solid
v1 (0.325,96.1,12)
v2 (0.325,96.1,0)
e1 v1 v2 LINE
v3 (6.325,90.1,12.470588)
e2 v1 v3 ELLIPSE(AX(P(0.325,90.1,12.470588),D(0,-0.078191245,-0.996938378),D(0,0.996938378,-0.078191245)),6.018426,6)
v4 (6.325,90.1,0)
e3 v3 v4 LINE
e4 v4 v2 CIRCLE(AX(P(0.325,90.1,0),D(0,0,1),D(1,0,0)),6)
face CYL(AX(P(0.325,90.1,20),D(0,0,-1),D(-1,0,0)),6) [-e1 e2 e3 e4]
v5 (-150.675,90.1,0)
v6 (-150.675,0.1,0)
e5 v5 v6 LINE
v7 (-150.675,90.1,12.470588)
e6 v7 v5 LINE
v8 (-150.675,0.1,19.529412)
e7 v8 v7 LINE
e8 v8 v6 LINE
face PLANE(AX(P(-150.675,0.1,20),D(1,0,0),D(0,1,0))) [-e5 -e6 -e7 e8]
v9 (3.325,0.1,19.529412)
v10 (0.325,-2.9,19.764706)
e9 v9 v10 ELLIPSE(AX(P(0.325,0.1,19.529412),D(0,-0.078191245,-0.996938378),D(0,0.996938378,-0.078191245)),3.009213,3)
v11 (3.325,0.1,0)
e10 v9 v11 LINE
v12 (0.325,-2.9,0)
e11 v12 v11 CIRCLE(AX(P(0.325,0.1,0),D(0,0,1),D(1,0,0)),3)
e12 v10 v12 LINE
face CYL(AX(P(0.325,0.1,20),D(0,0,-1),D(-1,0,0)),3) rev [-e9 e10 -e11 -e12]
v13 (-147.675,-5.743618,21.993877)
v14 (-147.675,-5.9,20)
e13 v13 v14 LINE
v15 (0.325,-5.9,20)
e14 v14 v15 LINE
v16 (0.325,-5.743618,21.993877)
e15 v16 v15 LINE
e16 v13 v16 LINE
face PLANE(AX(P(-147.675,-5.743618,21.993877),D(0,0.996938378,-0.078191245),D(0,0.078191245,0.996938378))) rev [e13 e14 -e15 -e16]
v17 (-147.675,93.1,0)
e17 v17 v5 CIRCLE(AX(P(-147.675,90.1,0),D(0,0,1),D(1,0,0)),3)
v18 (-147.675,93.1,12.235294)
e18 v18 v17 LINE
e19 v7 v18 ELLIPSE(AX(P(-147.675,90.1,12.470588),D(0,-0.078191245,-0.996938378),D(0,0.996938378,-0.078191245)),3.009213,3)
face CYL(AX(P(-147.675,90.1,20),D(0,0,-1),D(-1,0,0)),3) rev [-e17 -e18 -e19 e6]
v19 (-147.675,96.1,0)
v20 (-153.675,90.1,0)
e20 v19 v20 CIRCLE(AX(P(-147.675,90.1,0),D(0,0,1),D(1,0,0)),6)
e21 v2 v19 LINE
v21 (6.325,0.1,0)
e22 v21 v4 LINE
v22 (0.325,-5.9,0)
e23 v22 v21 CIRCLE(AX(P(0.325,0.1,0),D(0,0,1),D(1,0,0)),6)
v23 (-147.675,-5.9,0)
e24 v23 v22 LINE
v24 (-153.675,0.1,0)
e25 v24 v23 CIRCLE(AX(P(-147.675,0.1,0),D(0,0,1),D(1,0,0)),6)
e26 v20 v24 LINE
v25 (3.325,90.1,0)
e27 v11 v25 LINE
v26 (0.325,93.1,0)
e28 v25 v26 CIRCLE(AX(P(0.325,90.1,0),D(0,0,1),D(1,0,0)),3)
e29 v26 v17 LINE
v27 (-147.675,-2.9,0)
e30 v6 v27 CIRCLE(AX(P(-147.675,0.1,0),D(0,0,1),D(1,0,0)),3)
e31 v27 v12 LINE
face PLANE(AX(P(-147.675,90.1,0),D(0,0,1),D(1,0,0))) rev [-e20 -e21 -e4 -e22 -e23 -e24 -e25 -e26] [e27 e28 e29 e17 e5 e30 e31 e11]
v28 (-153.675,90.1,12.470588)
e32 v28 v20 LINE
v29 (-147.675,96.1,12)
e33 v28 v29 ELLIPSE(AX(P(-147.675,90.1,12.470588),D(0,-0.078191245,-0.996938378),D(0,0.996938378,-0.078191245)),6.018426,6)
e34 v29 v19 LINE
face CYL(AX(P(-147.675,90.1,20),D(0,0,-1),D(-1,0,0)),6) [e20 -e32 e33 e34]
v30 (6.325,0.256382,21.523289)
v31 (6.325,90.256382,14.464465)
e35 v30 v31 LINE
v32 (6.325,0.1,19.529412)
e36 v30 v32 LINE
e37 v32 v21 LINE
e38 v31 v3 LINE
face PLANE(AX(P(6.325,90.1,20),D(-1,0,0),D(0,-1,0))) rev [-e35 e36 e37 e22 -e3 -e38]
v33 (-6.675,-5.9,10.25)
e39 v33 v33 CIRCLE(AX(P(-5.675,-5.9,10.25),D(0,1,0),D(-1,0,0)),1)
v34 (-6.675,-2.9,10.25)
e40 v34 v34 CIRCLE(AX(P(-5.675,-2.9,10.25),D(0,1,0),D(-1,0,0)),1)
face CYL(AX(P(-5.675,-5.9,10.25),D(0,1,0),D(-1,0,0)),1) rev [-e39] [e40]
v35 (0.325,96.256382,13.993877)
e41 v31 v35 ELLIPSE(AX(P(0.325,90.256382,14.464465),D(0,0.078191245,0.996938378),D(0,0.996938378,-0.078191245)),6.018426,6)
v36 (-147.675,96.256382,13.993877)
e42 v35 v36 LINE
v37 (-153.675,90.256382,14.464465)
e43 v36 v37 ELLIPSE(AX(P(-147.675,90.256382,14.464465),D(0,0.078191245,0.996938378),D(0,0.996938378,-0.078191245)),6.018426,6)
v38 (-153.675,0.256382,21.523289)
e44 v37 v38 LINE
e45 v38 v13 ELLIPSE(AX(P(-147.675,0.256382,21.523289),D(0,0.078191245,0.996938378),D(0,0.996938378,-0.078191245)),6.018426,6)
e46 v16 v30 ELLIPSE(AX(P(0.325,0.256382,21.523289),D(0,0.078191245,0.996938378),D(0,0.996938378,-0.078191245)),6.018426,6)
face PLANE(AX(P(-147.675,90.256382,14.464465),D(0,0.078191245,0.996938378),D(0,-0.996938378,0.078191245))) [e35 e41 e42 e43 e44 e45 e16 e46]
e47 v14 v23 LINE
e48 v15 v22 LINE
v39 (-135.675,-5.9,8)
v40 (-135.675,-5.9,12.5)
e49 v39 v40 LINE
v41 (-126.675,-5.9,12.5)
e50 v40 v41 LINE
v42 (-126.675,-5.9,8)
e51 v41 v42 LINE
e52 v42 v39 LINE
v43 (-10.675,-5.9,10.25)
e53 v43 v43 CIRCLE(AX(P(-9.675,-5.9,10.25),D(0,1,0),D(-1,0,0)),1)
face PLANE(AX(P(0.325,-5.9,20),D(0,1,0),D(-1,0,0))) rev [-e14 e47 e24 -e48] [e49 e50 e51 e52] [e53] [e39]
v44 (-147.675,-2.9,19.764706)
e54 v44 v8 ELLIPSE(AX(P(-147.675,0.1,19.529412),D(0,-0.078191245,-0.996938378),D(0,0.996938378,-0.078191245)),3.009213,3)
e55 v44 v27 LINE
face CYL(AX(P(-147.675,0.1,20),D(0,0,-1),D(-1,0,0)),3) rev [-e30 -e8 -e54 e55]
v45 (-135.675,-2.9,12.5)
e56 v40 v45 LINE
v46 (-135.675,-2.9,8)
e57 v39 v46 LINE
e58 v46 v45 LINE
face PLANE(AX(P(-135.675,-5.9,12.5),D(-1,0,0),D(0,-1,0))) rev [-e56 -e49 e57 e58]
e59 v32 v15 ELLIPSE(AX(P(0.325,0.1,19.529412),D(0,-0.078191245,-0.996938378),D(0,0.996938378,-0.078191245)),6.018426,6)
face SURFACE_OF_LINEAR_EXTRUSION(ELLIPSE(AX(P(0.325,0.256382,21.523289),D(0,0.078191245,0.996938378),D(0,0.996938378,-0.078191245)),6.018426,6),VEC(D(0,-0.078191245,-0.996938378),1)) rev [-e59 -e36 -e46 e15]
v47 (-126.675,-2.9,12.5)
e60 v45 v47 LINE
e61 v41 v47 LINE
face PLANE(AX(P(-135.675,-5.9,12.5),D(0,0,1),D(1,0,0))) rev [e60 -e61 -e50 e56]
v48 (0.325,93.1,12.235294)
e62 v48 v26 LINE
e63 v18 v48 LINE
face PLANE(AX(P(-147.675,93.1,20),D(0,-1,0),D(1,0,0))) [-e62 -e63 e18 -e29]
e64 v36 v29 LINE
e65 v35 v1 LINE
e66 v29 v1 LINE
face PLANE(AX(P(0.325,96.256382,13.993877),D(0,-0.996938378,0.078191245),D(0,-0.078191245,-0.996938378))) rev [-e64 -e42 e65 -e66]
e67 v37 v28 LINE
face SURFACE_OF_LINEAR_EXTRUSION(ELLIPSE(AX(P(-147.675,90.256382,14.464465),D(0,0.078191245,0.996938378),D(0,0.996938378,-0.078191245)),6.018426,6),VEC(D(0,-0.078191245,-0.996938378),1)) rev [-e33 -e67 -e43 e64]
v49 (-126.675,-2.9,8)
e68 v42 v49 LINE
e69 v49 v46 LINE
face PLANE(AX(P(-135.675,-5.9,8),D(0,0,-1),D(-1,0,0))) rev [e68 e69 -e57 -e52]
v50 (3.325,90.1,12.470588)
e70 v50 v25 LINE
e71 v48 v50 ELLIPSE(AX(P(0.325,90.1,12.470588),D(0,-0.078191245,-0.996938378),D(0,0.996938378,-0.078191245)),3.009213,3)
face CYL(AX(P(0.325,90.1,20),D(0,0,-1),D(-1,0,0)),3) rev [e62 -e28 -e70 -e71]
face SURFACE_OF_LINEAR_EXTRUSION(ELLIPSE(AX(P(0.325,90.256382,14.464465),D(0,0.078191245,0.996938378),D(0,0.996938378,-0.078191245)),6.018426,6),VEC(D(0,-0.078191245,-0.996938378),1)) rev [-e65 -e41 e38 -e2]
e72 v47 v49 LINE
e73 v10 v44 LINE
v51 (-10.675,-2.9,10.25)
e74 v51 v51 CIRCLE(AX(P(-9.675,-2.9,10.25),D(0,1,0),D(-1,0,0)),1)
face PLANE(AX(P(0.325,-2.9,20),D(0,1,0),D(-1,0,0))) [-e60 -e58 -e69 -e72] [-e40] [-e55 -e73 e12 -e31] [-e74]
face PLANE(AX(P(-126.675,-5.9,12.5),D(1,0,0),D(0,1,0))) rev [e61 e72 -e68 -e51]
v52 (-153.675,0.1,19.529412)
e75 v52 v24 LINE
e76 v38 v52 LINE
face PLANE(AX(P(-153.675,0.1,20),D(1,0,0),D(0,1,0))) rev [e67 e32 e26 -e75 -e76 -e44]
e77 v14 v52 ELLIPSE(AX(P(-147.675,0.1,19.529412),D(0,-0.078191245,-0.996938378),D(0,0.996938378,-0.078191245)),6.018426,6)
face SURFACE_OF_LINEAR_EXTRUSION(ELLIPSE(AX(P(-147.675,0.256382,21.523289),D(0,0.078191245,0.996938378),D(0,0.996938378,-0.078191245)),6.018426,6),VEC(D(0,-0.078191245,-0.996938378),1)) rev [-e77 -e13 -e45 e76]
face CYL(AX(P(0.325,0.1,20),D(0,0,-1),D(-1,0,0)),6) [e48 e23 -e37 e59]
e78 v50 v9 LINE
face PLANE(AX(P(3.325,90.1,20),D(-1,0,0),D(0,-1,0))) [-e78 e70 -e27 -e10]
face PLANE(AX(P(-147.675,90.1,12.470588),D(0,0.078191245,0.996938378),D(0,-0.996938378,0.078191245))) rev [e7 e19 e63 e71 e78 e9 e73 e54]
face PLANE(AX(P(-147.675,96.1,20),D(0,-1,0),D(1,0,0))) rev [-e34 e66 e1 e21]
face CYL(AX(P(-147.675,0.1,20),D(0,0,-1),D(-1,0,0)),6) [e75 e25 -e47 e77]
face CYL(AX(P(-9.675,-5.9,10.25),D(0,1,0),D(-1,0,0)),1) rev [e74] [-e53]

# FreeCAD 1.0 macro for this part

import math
import FreeCAD as App
import Part
import Sketcher
from FreeCAD import Vector


def add_polygon(sketch, points):
    """Adds a closed chain of lines whose ends are joined by coincident constraints."""
    first, n = sketch.GeometryCount, len(points)
    for a, b in zip(points, points[1:] + points[:1]):
        sketch.addGeometry(Part.LineSegment(App.Vector(*a, 0), App.Vector(*b, 0)), False)
    for i in range(n):
        sketch.addConstraint(Sketcher.Constraint("Coincident", first + i, 2, first + (i + 1) % n, 1))

doc = App.newDocument("Part")
body = doc.addObject("PartDesign::Body", "Body")

sketch1 = doc.addObject("Sketcher::SketchObject", "Sketch")
body.addObject(sketch1)
sketch1.AttachmentSupport = (doc.XY_Plane, [""])
sketch1.MapMode = "FlatFace"
sketch1.addGeometry([
    Part.LineSegment(Vector(-153.7, 90.1, 0), Vector(-153.7, 0.1, 0)),
    Part.ArcOfCircle(Part.Circle(Vector(-147.7, 0.1, 0), Vector(0, 0, 1), 6), math.radians(180), math.radians(270)),
    Part.LineSegment(Vector(-147.7, -5.9, 0), Vector(0.3, -5.9, 0)),
    Part.ArcOfCircle(Part.Circle(Vector(0.3, 0.1, 0), Vector(0, 0, 1), 6), math.radians(-90), math.radians(0)),
    Part.LineSegment(Vector(6.3, 0.1, 0), Vector(6.3, 90.1, 0)),
    Part.ArcOfCircle(Part.Circle(Vector(0.3, 90.1, 0), Vector(0, 0, 1), 6), math.radians(0), math.radians(90)),
    Part.LineSegment(Vector(0.3, 96.1, 0), Vector(-147.7, 96.1, 0)),
    Part.ArcOfCircle(Part.Circle(Vector(-147.7, 90.1, 0), Vector(0, 0, 1), 6), math.radians(90), math.radians(180)),
    Part.LineSegment(Vector(3.3, 90.1, 0), Vector(3.3, 0.1, 0)),
    Part.ArcOfCircle(Part.Circle(Vector(0.3, 0.1, 0), Vector(0, 0, 1), 3), math.radians(-90), math.radians(0)),
    Part.LineSegment(Vector(0.3, -2.9, 0), Vector(-147.7, -2.9, 0)),
    Part.ArcOfCircle(Part.Circle(Vector(-147.7, 0.1, 0), Vector(0, 0, 1), 3), math.radians(180), math.radians(270)),
    Part.LineSegment(Vector(-150.7, 0.1, 0), Vector(-150.7, 90.1, 0)),
    Part.ArcOfCircle(Part.Circle(Vector(-147.7, 90.1, 0), Vector(0, 0, 1), 3), math.radians(90), math.radians(180)),
    Part.LineSegment(Vector(-147.7, 93.1, 0), Vector(0.3, 93.1, 0)),
    Part.ArcOfCircle(Part.Circle(Vector(0.3, 90.1, 0), Vector(0, 0, 1), 3), math.radians(0), math.radians(90)),
], False)
sketch1.addConstraint([
    Sketcher.Constraint("Tangent", 0, 2, 1, 1),
    Sketcher.Constraint("Tangent", 1, 2, 2, 1),
    Sketcher.Constraint("Tangent", 2, 2, 3, 1),
    Sketcher.Constraint("Tangent", 3, 2, 4, 1),
    Sketcher.Constraint("Tangent", 4, 2, 5, 1),
    Sketcher.Constraint("Tangent", 5, 2, 6, 1),
    Sketcher.Constraint("Tangent", 6, 2, 7, 1),
    Sketcher.Constraint("Tangent", 7, 2, 0, 1),
    Sketcher.Constraint("Tangent", 8, 2, 9, 2),
    Sketcher.Constraint("Tangent", 9, 1, 10, 1),
    Sketcher.Constraint("Tangent", 10, 2, 11, 2),
    Sketcher.Constraint("Tangent", 11, 1, 12, 1),
    Sketcher.Constraint("Tangent", 12, 2, 13, 2),
    Sketcher.Constraint("Tangent", 13, 1, 14, 1),
    Sketcher.Constraint("Tangent", 14, 2, 15, 2),
    Sketcher.Constraint("Tangent", 15, 1, 8, 1),
    Sketcher.Constraint("Vertical", 0),
    Sketcher.Constraint("Horizontal", 2),
    Sketcher.Constraint("Vertical", 4),
    Sketcher.Constraint("Horizontal", 6),
    Sketcher.Constraint("Vertical", 8),
    Sketcher.Constraint("Horizontal", 10),
    Sketcher.Constraint("Vertical", 12),
    Sketcher.Constraint("Horizontal", 14),
    Sketcher.Constraint("Coincident", 9, 3, 3, 3),
    Sketcher.Constraint("Coincident", 11, 3, 1, 3),
    Sketcher.Constraint("Coincident", 13, 3, 7, 3),
    Sketcher.Constraint("Equal", 1, 3),
    Sketcher.Constraint("Equal", 3, 5),
    Sketcher.Constraint("Equal", 5, 7),
    Sketcher.Constraint("Equal", 13, 15),
    Sketcher.Constraint("Radius", 1, 6.0),
    Sketcher.Constraint("Radius", 9, 3.0),
    Sketcher.Constraint("DistanceX", 2, 1, 2, 2, 148.0),
    Sketcher.Constraint("DistanceY", 0, 2, 0, 1, 90.0),
    Sketcher.Constraint("DistanceY", -1, 1, 1, 3, 0.1),
    Sketcher.Constraint("DistanceX", 1, 3, -1, 1, 147.675),
])
pad1 = doc.addObject("PartDesign::Pad", "Pad")
body.addObject(pad1)
pad1.Profile = sketch1
pad1.Length = 20

sketch2 = doc.addObject("Sketcher::SketchObject", "Sketch001")
body.addObject(sketch2)
sketch2.AttachmentSupport = (doc.YZ_Plane, [""])
sketch2.MapMode = "FlatFace"
sketch2.AttachmentOffset = App.Placement(Vector(0, 0, 6.325), App.Rotation())
add_polygon(sketch2, [(96, 12), (96, 20), (-6, 20)])
sketch2.addConstraint([
    Sketcher.Constraint("Vertical", 0),
    Sketcher.Constraint("Horizontal", 1),
    Sketcher.Constraint("DistanceX", 1, 2, 1, 1, 102.0),
    Sketcher.Constraint("DistanceY", 0, 1, 0, 2, 8.0),
    Sketcher.Constraint("DistanceY", -1, 1, 0, 2, 20.0),
    Sketcher.Constraint("DistanceX", -1, 1, 0, 2, 96.1),
])
pocket1 = doc.addObject("PartDesign::Pocket", "Pocket")
body.addObject(pocket1)
pocket1.Profile = sketch2
pocket1.Type = "ThroughAll"

sketch3 = doc.addObject("Sketcher::SketchObject", "Sketch002")
body.addObject(sketch3)
sketch3.Placement = App.Placement(Vector(0, 1.522965, 19.417807), App.Rotation(Vector(1, 0, 0), Vector(0, 0.996938378, -0.078191245), Vector(0, 0.078191245, 0.996938378), "ZXY"))
sketch3.addGeometry([
    Part.LineSegment(Vector(-153.675, 88.849057, 0), Vector(-153.675, -1.427335, 0)),
    Part.BSplineCurve([Vector(-153.675, -1.427335, 0), Vector(-153.675, -7.445761, 0), Vector(-147.675, -7.445761, 0)], [3, 3], [1.570796327, 3.141592654], False, 2, [1, 0.707106781, 1], False),
    Part.LineSegment(Vector(-147.675, -7.445761, 0), Vector(0.325, -7.445761, 0)),
    Part.BSplineCurve([Vector(0.325, -7.445761, 0), Vector(6.325, -7.445761, 0), Vector(6.325, -1.427335, 0)], [3, 3], [3.141592654, 4.71238898], False, 2, [1, 0.707106781, 1], False),
    Part.LineSegment(Vector(6.325, -1.427335, 0), Vector(6.325, 88.849057, 0)),
    Part.BSplineCurve([Vector(6.325, 88.849057, 0), Vector(6.325, 94.867483, 0), Vector(0.325, 94.867483, 0)], [3, 3], [4.71238898, 6.283185307], False, 2, [1, 0.707106781, 1], False),
    Part.LineSegment(Vector(0.325, 94.867483, 0), Vector(-147.675, 94.867483, 0)),
    Part.BSplineCurve([Vector(-147.675, 94.867483, 0), Vector(-153.675, 94.867483, 0), Vector(-153.675, 88.849057, 0)], [3, 3], [0, 1.570796327], False, 2, [1, 0.707106781, 1], False),
], False)
sketch3.addConstraint([
    Sketcher.Constraint("Block", 1),
    Sketcher.Constraint("Block", 3),
    Sketcher.Constraint("Block", 5),
    Sketcher.Constraint("Block", 7),
    Sketcher.Constraint("Coincident", 0, 2, 1, 1),
    Sketcher.Constraint("Coincident", 1, 2, 2, 1),
    Sketcher.Constraint("Coincident", 2, 2, 3, 1),
    Sketcher.Constraint("Coincident", 3, 2, 4, 1),
    Sketcher.Constraint("Coincident", 4, 2, 5, 1),
    Sketcher.Constraint("Coincident", 5, 2, 6, 1),
    Sketcher.Constraint("Coincident", 6, 2, 7, 1),
    Sketcher.Constraint("Coincident", 7, 2, 0, 1),
])
pad2 = doc.addObject("PartDesign::Pad", "Pad001")
body.addObject(pad2)
pad2.Profile = sketch3
pad2.Length = 2

sketch4 = doc.addObject("Sketcher::SketchObject", "Sketch003")
body.addObject(sketch4)
sketch4.AttachmentSupport = (doc.XZ_Plane, [""])
sketch4.MapMode = "FlatFace"
sketch4.AttachmentOffset = App.Placement(Vector(0, 0, 2.9), App.Rotation())
add_polygon(sketch4, [(-135.7, 8), (-135.7, 12.5), (-126.7, 12.5), (-126.7, 8)])
sketch4.addConstraint([
    Sketcher.Constraint("Vertical", 0),
    Sketcher.Constraint("Horizontal", 1),
    Sketcher.Constraint("Vertical", 2),
    Sketcher.Constraint("Horizontal", 3),
    Sketcher.Constraint("DistanceX", 1, 1, 1, 2, 9.0),
    Sketcher.Constraint("DistanceY", 0, 1, 0, 2, 4.5),
    Sketcher.Constraint("DistanceY", -1, 1, 2, 2, 8.0),
    Sketcher.Constraint("DistanceX", 0, 2, -1, 1, 135.675),
])
pocket2 = doc.addObject("PartDesign::Pocket", "Pocket001")
body.addObject(pocket2)
pocket2.Profile = sketch4
pocket2.Type = "ThroughAll"
pocket2.Reversed = True

sketch5 = doc.addObject("Sketcher::SketchObject", "Sketch004")
body.addObject(sketch5)
sketch5.AttachmentSupport = (doc.XZ_Plane, [""])
sketch5.MapMode = "FlatFace"
sketch5.AttachmentOffset = App.Placement(Vector(0, 0, 2.9), App.Rotation())
sketch5.addGeometry([
    Part.Circle(Vector(-5.7, 10.2, 0), Vector(0, 0, 1), 1),
    Part.Circle(Vector(-9.7, 10.2, 0), Vector(0, 0, 1), 1),
], False)
sketch5.addConstraint([
    Sketcher.Constraint("Equal", 0, 1),
    Sketcher.Constraint("Horizontal", 0, 3, 1, 3),
    Sketcher.Constraint("Diameter", 0, 2.0),
    Sketcher.Constraint("DistanceX", 1, 3, 0, 3, 4.0),
    Sketcher.Constraint("DistanceY", -1, 1, 0, 3, 10.25),
    Sketcher.Constraint("DistanceX", 0, 3, -1, 1, 5.675),
])
pocket3 = doc.addObject("PartDesign::Pocket", "Pocket002")
body.addObject(pocket3)
pocket3.Profile = sketch5
pocket3.Type = "ThroughAll"
pocket3.Reversed = True

doc.recompute()
